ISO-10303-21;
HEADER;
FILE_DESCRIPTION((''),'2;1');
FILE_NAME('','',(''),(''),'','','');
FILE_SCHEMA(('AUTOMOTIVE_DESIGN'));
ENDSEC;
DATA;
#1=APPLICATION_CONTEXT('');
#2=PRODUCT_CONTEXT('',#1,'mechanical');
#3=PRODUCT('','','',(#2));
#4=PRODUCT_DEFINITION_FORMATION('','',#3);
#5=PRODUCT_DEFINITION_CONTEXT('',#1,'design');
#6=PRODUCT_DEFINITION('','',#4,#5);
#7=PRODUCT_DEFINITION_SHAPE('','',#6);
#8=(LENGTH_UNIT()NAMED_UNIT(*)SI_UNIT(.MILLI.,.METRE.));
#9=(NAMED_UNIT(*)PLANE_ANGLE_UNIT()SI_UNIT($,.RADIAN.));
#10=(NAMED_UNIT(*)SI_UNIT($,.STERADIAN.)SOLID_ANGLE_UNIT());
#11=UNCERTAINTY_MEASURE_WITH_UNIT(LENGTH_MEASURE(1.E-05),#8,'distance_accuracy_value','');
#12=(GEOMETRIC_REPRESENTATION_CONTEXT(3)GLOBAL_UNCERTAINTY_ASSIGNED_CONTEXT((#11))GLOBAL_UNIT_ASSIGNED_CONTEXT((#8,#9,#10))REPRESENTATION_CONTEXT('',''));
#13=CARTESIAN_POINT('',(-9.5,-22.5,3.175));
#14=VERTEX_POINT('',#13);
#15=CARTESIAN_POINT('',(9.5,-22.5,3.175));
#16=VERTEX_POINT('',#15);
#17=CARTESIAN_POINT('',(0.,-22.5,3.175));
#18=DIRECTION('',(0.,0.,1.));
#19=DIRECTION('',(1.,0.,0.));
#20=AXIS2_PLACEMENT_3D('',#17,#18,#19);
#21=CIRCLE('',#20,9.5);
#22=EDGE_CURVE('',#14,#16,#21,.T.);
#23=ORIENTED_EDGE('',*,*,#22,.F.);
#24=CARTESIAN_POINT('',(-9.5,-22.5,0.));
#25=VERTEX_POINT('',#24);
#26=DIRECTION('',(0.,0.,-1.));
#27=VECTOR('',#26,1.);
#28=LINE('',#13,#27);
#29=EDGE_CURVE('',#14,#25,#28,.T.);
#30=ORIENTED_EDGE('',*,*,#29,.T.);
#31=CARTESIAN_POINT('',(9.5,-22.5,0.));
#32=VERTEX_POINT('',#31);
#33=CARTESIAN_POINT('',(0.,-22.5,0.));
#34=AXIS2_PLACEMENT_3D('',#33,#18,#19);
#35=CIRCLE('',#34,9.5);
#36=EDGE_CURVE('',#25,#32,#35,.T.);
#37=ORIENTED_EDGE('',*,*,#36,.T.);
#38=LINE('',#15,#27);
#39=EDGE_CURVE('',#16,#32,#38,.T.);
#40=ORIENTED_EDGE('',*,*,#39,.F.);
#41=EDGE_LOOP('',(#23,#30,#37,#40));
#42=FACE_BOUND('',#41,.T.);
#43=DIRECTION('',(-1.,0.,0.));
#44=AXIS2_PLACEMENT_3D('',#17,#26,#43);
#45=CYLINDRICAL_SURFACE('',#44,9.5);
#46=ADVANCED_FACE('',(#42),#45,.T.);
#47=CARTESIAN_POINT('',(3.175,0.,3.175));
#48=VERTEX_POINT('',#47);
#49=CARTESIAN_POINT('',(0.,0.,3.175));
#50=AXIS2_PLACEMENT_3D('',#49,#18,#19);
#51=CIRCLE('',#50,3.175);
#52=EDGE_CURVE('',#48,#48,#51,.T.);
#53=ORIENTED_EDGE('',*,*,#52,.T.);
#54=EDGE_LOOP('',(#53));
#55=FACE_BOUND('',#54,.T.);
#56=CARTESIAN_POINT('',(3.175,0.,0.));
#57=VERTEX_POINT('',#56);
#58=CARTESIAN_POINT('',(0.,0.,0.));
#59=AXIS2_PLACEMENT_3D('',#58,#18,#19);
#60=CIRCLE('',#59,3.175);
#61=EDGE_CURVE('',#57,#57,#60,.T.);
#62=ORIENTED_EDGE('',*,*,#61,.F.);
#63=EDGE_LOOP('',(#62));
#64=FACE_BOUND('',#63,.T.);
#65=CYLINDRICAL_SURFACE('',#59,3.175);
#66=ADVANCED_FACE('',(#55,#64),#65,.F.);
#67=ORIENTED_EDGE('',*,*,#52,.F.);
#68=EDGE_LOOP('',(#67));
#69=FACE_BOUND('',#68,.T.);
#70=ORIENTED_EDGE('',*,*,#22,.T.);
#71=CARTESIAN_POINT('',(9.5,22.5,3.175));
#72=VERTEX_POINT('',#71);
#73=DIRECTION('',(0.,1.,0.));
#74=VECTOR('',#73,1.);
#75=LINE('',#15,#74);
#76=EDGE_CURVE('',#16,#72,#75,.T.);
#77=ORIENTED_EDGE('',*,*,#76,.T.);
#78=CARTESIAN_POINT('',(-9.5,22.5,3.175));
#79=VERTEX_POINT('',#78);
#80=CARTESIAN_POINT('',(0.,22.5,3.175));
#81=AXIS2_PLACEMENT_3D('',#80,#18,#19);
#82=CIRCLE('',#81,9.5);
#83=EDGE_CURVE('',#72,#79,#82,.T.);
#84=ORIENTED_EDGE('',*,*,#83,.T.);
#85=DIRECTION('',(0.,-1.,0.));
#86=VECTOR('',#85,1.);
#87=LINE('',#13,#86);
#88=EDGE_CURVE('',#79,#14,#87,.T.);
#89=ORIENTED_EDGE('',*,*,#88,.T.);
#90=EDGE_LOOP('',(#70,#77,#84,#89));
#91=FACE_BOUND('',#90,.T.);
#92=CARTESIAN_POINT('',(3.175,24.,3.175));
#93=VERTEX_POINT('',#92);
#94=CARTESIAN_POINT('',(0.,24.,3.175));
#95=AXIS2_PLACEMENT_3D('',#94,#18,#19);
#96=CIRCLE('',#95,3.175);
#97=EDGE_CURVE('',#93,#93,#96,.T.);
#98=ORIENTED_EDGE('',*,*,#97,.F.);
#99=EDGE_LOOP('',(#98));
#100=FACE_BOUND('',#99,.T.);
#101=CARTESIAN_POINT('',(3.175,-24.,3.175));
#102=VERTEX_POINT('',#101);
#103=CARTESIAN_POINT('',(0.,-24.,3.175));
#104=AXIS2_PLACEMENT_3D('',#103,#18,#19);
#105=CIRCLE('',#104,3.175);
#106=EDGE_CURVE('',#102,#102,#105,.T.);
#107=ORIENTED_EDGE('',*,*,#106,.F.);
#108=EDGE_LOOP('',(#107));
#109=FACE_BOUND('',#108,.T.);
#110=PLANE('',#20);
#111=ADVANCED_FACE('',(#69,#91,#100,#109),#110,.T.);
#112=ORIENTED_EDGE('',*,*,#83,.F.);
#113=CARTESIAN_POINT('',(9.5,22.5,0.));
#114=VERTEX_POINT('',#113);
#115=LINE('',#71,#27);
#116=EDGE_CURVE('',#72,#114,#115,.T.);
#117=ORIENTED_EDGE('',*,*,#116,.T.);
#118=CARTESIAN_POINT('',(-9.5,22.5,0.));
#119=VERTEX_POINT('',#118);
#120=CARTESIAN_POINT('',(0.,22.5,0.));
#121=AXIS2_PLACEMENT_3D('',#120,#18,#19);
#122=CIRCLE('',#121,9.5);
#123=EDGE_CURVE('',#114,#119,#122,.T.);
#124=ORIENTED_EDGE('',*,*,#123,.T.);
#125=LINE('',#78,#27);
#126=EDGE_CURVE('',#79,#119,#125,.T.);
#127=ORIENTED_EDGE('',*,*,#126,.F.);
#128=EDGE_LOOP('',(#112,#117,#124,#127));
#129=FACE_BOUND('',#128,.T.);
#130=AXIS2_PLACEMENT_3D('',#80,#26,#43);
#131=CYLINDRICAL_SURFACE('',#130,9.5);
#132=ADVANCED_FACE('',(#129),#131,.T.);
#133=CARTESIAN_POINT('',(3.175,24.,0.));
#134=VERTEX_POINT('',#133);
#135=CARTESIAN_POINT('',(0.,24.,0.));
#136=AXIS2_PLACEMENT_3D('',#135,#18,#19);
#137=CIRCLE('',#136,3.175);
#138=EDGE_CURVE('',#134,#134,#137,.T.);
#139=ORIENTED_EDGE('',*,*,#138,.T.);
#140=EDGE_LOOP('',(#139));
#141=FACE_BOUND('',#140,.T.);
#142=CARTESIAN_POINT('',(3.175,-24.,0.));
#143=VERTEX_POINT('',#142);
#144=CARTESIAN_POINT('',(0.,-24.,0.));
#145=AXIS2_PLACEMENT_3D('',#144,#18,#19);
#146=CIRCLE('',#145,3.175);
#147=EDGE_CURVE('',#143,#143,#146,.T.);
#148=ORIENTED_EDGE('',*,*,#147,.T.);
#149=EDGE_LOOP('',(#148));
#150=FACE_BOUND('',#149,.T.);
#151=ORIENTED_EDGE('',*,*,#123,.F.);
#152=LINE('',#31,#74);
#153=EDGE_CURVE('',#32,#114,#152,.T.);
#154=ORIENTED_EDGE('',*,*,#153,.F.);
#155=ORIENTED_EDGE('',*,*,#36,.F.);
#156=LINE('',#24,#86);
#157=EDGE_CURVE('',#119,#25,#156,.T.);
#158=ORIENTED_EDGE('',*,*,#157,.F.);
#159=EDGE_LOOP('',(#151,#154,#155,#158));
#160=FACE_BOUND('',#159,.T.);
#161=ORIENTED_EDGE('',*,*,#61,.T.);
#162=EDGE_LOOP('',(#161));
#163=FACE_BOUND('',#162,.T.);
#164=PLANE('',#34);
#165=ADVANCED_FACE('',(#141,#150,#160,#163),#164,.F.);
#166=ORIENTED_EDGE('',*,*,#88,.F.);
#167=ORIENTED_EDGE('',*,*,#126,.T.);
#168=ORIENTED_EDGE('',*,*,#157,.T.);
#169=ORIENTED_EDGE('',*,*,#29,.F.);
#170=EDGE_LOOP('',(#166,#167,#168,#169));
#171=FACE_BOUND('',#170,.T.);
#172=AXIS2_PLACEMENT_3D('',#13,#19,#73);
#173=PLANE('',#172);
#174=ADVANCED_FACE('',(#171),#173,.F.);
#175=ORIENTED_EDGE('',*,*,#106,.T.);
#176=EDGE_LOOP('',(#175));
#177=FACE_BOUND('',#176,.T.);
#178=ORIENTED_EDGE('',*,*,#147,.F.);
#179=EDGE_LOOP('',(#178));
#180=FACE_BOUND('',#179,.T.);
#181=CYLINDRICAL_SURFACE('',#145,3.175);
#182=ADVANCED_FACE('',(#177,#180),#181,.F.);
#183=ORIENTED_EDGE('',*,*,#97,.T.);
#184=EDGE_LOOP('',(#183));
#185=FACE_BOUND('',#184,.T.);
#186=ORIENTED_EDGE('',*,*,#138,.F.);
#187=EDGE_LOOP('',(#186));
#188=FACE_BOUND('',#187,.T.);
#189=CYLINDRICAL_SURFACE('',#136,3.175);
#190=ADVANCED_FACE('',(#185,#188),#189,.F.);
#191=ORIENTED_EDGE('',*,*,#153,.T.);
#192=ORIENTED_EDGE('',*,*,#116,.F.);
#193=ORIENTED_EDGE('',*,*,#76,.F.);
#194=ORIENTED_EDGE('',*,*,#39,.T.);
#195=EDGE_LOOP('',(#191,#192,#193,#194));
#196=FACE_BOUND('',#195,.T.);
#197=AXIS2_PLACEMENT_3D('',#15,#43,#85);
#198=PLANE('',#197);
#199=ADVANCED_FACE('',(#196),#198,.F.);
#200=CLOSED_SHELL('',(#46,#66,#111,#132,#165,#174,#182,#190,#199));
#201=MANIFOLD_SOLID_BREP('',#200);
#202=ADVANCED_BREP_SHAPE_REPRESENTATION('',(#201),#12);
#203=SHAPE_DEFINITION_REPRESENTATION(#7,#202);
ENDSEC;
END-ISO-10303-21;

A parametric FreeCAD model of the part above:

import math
import FreeCAD as App
import Part
import Sketcher
Q = App.Units.Quantity

doc = App.newDocument("Part")
body = doc.addObject("PartDesign::Body", "Body")

# Sketch on XY plane
sketch1 = body.newObject("Sketcher::SketchObject", "Sketch")
sketch1.AttachmentSupport = (doc.getObject("XY_Plane"), [""])
sketch1.MapMode = "FlatFace"
sketch1.addGeometry([
    Part.LineSegment(App.Vector(-10, 22, 0), App.Vector(-10, -22, 0)),
    Part.ArcOfCircle(Part.Circle(App.Vector(0, -22, 0), App.Vector(0, 0, 1), 10), math.radians(180), math.radians(360)),
    Part.LineSegment(App.Vector(10, -22, 0), App.Vector(10, 22, 0)),
    Part.ArcOfCircle(Part.Circle(App.Vector(0, 22, 0), App.Vector(0, 0, 1), 10), math.radians(0), math.radians(180)),
], False)
sketch1.addConstraint([
    Sketcher.Constraint("Tangent", 0, 2, 1, 1),
    Sketcher.Constraint("Tangent", 1, 2, 2, 1),
    Sketcher.Constraint("Tangent", 2, 2, 3, 1),
    Sketcher.Constraint("Tangent", 3, 2, 0, 1),
    Sketcher.Constraint("Vertical", 0),
    Sketcher.Constraint("Vertical", 2),
    Sketcher.Constraint("Symmetric", 1, 3, 3, 3, -1, 1),
    Sketcher.Constraint("Radius", 1, Q("9.5 mm")),
    Sketcher.Constraint("DistanceY", 0, 2, 0, 1, Q("45 mm")),
])
pad1 = body.newObject("PartDesign::Pad", "Pad")
pad1.Profile = sketch1
pad1.Length = 3.175

# Sketch on XY plane
sketch2 = body.newObject("Sketcher::SketchObject", "Sketch001")
sketch2.AttachmentSupport = (doc.getObject("XY_Plane"), [""])
sketch2.MapMode = "FlatFace"
sketch2.AttachmentOffset = App.Placement(App.Vector(0, 0, 3.175), App.Rotation())
sketch2.addGeometry(Part.Circle(App.Vector(0, 0, 0), App.Vector(0, 0, 1), 3.2), False)
sketch2.addConstraint([
    Sketcher.Constraint("Coincident", 0, 3, -1, 1),
    Sketcher.Constraint("Diameter", 0, Q("6.35 mm")),
])
pocket1 = body.newObject("PartDesign::Pocket", "Pocket")
pocket1.Profile = sketch2
pocket1.Type = "ThroughAll"
doc.recompute()

linearpattern = body.newObject("PartDesign::LinearPattern", "LinearPattern")
linearpattern.Originals = [pocket1]
linearpattern.Direction = (doc.getObject("Y_Axis"), [""])
linearpattern.Mode = "offset"
linearpattern.Offset = 24
linearpattern.Occurrences = 2
body.Tip = linearpattern
doc.recompute()

linearpattern2 = body.newObject("PartDesign::LinearPattern", "LinearPattern001")
linearpattern2.Originals = [pocket1]
linearpattern2.Direction = (doc.getObject("Y_Axis"), [""])
linearpattern2.Mode = "offset"
linearpattern2.Offset = 24
linearpattern2.Occurrences = 2
linearpattern2.Reversed = True
body.Tip = linearpattern2

doc.recompute()
